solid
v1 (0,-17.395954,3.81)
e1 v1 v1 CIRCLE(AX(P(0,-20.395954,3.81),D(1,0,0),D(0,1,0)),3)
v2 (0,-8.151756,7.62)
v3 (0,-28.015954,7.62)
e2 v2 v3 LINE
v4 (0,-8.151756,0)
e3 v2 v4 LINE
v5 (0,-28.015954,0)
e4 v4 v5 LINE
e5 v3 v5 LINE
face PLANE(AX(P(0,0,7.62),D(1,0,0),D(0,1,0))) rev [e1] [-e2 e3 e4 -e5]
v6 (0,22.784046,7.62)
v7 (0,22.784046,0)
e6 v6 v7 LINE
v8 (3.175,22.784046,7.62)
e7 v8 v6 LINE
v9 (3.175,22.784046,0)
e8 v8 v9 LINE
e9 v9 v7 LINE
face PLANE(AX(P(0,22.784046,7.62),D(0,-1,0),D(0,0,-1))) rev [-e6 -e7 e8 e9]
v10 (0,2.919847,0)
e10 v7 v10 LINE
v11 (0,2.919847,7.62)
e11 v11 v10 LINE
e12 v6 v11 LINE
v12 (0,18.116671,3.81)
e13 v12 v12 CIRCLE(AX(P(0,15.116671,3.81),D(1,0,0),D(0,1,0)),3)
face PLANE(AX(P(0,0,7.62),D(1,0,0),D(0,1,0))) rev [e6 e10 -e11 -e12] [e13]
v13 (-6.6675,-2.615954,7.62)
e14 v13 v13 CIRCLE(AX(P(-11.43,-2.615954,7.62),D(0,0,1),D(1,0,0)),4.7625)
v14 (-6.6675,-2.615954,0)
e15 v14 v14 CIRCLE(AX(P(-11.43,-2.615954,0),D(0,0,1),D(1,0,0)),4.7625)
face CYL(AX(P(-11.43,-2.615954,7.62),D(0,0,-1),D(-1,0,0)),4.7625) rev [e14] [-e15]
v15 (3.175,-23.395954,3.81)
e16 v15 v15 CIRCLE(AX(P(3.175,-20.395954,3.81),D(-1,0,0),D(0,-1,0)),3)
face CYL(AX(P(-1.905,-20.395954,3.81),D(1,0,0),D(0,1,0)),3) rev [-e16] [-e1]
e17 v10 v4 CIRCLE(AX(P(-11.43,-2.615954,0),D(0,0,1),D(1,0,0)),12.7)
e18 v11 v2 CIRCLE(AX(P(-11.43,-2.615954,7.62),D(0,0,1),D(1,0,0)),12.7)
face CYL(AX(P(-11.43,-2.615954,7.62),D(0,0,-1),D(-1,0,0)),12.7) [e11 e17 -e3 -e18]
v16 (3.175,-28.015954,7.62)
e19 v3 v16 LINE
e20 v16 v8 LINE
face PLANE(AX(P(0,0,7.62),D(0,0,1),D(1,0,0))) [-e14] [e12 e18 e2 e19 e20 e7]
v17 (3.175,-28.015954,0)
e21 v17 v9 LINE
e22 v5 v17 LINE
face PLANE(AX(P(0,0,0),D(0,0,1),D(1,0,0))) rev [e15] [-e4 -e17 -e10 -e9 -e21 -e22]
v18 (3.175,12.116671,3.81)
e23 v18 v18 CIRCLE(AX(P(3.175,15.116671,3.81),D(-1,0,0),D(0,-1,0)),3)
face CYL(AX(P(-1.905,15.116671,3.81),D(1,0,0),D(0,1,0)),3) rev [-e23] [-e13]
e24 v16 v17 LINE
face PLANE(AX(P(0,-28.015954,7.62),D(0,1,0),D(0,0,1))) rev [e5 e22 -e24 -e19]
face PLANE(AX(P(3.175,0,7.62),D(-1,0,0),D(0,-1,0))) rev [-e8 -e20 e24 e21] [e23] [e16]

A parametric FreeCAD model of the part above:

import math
import FreeCAD as App
import Part
import Sketcher
Q = App.Units.Quantity

doc = App.newDocument("Part")
body = doc.addObject("PartDesign::Body", "Body")

# Sketch on XY plane
sketch1 = body.newObject("Sketcher::SketchObject", "Sketch")
sketch1.AttachmentSupport = (doc.getObject("XY_Plane"), [""])
sketch1.MapMode = "FlatFace"
sketch1.addGeometry([
    Part.LineSegment(App.Vector(0, -8.151756, 0), App.Vector(0, -28.015954, 0)),  # 0
    Part.LineSegment(App.Vector(0, -28.015954, 0), App.Vector(3.175, -28.015954, 0)),  # 1
    Part.LineSegment(App.Vector(3.175, -28.015954, 0), App.Vector(3.175, 22.784046, 0)),  # 2
    Part.LineSegment(App.Vector(3.175, 22.784046, 0), App.Vector(0, 22.784046, 0)),  # 3
    Part.LineSegment(App.Vector(0, 22.784046, 0), App.Vector(0, 2.919847, 0)),  # 4
    Part.ArcOfCircle(Part.Circle(App.Vector(-11.43, -2.615954, 0), App.Vector(0, 0, 1), 12.7), math.radians(25.841933), math.radians(334.158067)),  # 5
    Part.Circle(App.Vector(-11.43, -2.615954, 0), App.Vector(0, 0, 1), 4.7625),  # 6
], False)
sketch1.addConstraint([
    Sketcher.Constraint("Coincident", 0, 2, 1, 1),
    Sketcher.Constraint("Coincident", 1, 2, 2, 1),
    Sketcher.Constraint("Coincident", 2, 2, 3, 1),
    Sketcher.Constraint("Coincident", 3, 2, 4, 1),
    Sketcher.Constraint("Coincident", 4, 2, 5, 1),
    Sketcher.Constraint("Coincident", 5, 2, 0, 1),
    Sketcher.Constraint("Vertical", 0),
    Sketcher.Constraint("Horizontal", 1),
    Sketcher.Constraint("Vertical", 2),
    Sketcher.Constraint("Horizontal", 3),
    Sketcher.Constraint("Vertical", 4),
    Sketcher.Constraint("Coincident", 6, 3, 5, 3),
    Sketcher.Constraint("PointOnObject", 0, 2, -2),
    Sketcher.Constraint("PointOnObject", 3, 2, -2),
    Sketcher.Constraint("Equal", 0, 4),
    Sketcher.Constraint("Radius", 5, Q("0.5 in")),
    Sketcher.Constraint("DistanceY", 2, 1, 2, 2, Q("2 in")),
    Sketcher.Constraint("Diameter", 6, Q("0.375 in")),
    Sketcher.Constraint("DistanceX", 1, 1, 1, 2, Q("0.125 in")),
    Sketcher.Constraint("DistanceX", 5, 3, -1, 1, Q("0.45 in")),
    Sketcher.Constraint("DistanceY", 5, 3, -1, 1, Q("2.615954 mm")),
])
pad1 = body.newObject("PartDesign::Pad", "Pad")
pad1.Profile = sketch1
pad1.Length = Q("0.3 in")

# Sketch on YZ plane
sketch2 = body.newObject("Sketcher::SketchObject", "Sketch001")
sketch2.AttachmentSupport = (doc.getObject("YZ_Plane"), [""])
sketch2.MapMode = "FlatFace"
sketch2.AttachmentOffset = App.Placement(App.Vector(0, 0, 0.225 * 25.4), App.Rotation())
sketch2.addGeometry([
    Part.ArcOfCircle(Part.Circle(App.Vector(15.116671, 3.81, 0), App.Vector(0, 0, 1), 3), math.radians(-90), math.radians(0)),  # 0
    Part.ArcOfCircle(Part.Circle(App.Vector(15.116671, 3.81, 0), App.Vector(0, 0, 1), 3), math.radians(0), math.radians(180)),  # 1
    Part.ArcOfCircle(Part.Circle(App.Vector(15.116671, 3.81, 0), App.Vector(0, 0, 1), 3), math.radians(180), math.radians(270)),  # 2
    Part.ArcOfCircle(Part.Circle(App.Vector(-20.395954, 3.81, 0), App.Vector(0, 0, 1), 3), math.radians(-90), math.radians(0)),  # 3
    Part.ArcOfCircle(Part.Circle(App.Vector(-20.395954, 3.81, 0), App.Vector(0, 0, 1), 3), math.radians(0), math.radians(180)),  # 4
    Part.ArcOfCircle(Part.Circle(App.Vector(-20.395954, 3.81, 0), App.Vector(0, 0, 1), 3), math.radians(180), math.radians(270)),  # 5
], False)
sketch2.addConstraint([
    Sketcher.Constraint("Tangent", 0, 2, 1, 1),
    Sketcher.Constraint("Tangent", 1, 2, 2, 1),
    Sketcher.Constraint("Tangent", 2, 2, 0, 1),
    Sketcher.Constraint("Tangent", 3, 2, 4, 1),
    Sketcher.Constraint("Tangent", 4, 2, 5, 1),
    Sketcher.Constraint("Tangent", 5, 2, 3, 1),
    Sketcher.Constraint("Equal", 2, 3),
    Sketcher.Constraint("Horizontal", 2, 3, 3, 3),
    Sketcher.Constraint("Horizontal", 5, 3, 0, 2),
    Sketcher.Constraint("Horizontal", 0, 2, 1, 2),
    Sketcher.Constraint("Horizontal", 1, 2, 3, 2),
    Sketcher.Constraint("Horizontal", 3, 2, 4, 2),
    Sketcher.Constraint("Vertical", 1, 3, 2, 2),
    Sketcher.Constraint("Vertical", 4, 3, 5, 2),
    Sketcher.Constraint("DistanceY", -1, 1, 0, 3, Q("0.15 in")),
    Sketcher.Constraint("Radius", 0, Q("3 mm")),
    Sketcher.Constraint("DistanceX", -1, 1, 0, 3, Q("15.116671 mm")),
    Sketcher.Constraint("DistanceX", 3, 3, -1, 1, Q("20.395954 mm")),
])
pocket1 = body.newObject("PartDesign::Pocket", "Pocket")
pocket1.Profile = sketch2
pocket1.Length = Q("0.3 in")

doc.recompute()
